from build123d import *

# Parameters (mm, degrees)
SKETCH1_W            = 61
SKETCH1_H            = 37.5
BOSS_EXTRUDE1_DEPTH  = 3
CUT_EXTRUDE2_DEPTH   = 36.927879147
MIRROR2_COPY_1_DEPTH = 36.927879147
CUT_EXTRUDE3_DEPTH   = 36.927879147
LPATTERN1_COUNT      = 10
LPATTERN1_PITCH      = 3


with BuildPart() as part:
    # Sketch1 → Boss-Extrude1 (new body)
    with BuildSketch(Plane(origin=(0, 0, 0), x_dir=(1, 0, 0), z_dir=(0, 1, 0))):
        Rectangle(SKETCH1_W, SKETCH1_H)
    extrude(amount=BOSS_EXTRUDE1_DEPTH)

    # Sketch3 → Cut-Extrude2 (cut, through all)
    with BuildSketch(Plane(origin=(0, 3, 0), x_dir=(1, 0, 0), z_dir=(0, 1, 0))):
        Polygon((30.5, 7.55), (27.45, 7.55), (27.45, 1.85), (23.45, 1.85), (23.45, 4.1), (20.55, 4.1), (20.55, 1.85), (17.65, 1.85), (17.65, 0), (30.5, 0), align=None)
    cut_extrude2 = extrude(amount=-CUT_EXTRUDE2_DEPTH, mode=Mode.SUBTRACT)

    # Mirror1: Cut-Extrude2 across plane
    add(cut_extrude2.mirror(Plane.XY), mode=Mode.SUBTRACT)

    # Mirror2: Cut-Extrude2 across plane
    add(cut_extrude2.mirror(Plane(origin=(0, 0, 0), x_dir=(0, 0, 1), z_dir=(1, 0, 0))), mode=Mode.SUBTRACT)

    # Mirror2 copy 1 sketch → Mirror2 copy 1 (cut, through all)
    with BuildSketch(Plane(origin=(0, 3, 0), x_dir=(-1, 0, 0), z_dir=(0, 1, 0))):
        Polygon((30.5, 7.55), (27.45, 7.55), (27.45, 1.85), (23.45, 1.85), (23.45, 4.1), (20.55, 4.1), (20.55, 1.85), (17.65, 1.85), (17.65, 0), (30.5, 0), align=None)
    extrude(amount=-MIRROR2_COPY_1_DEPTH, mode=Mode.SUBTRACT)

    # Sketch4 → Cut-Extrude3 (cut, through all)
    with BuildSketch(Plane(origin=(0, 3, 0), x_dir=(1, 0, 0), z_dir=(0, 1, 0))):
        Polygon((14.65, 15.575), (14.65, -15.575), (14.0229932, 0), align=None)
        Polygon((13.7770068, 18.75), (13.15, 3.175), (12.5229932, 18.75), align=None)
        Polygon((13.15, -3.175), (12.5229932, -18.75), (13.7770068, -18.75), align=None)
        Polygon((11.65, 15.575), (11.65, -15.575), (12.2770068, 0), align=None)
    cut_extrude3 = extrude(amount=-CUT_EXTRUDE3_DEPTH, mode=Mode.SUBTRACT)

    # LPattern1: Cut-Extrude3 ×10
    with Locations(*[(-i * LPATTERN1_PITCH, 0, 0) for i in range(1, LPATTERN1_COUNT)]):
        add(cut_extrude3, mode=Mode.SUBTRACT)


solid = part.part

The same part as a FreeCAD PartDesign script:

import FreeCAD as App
import Part
import Sketcher
Q = App.Units.Quantity


def add_polygon(sketch, points):
    """Adds a closed chain of lines whose ends are joined by coincident constraints."""
    first, n = sketch.GeometryCount, len(points)
    for a, b in zip(points, points[1:] + points[:1]):
        sketch.addGeometry(Part.LineSegment(App.Vector(*a, 0), App.Vector(*b, 0)), False)
    for i in range(n):
        sketch.addConstraint(Sketcher.Constraint("Coincident", first + i, 2, first + (i + 1) % n, 1))

doc = App.newDocument("Part")
params = doc.addObject("Spreadsheet::Sheet", "Params")
for row, (alias, value) in enumerate([
    ("sketch1_width", "61 mm"),
    ("sketch1_height", "37.5 mm"),
    ("pad1_length", "3 mm"),
    ("sketch2_width", "4 mm"),
    ("sketch2_width2", "2.9 mm"),
    ("sketch2_height", "5.7 mm"),
    ("sketch2_width3", "3.05 mm"),
    ("sketch2_height2", "2.25 mm"),
    ("sketch3_width", "4 mm"),
    ("sketch3_width2", "2.9 mm"),
    ("sketch3_height", "5.7 mm"),
    ("sketch3_width3", "3.05 mm"),
    ("sketch3_height2", "2.25 mm"),
    ("sketch4_height", "31.15 mm"),
    ("linearpattern_pitch", "3 mm"),
], start=1):
    params.set(f"A{row}", alias)
    params.set(f"B{row}", "=" + value)
    params.setAlias(f"B{row}", alias)

body = doc.addObject("PartDesign::Body", "Body")

sketch1 = body.newObject("Sketcher::SketchObject", "Sketch")
sketch1.AttachmentSupport = (doc.getObject("XZ_Plane"), [""])
sketch1.MapMode = "FlatFace"
add_polygon(sketch1, [(-30, -19), (-30, 19), (30, 19), (30, -19)])
sketch1.addConstraint([
    Sketcher.Constraint("Vertical", 0),
    Sketcher.Constraint("Horizontal", 1),
    Sketcher.Constraint("Vertical", 2),
    Sketcher.Constraint("Horizontal", 3),
    Sketcher.Constraint("Symmetric", 0, 2, 2, 2, -1, 1),
    Sketcher.Constraint("DistanceX", 1, 1, 1, 2, Q("61 mm")),
    Sketcher.Constraint("DistanceY", 0, 1, 0, 2, Q("37.5 mm")),
])
sketch1.setExpression("Constraints[9]", "Params.sketch1_width")
sketch1.setExpression("Constraints[10]", "Params.sketch1_height")
pad1 = body.newObject("PartDesign::Pad", "Pad")
pad1.Profile = sketch1
pad1.setExpression("Length", "Params.pad1_length")
pad1.Reversed = True

sketch2 = body.newObject("Sketcher::SketchObject", "Sketch001")
sketch2.AttachmentSupport = (doc.getObject("XZ_Plane"), [""])
sketch2.MapMode = "FlatFace"
sketch2.AttachmentOffset = App.Placement(App.Vector(0, 0, -3), App.Rotation())
add_polygon(sketch2, [(30.5, -7.5), (27.4, -7.5), (27.4, -1.9), (23.4, -1.9), (23.4, -4.1), (20.6, -4.1), (20.6, -1.9), (17.6, -1.9), (17.6, 0), (30.5, 0)])
sketch2.addConstraint([
    Sketcher.Constraint("Horizontal", 0),
    Sketcher.Constraint("Vertical", 1),
    Sketcher.Constraint("Horizontal", 2),
    Sketcher.Constraint("Vertical", 3),
    Sketcher.Constraint("Horizontal", 4),
    Sketcher.Constraint("Vertical", 5),
    Sketcher.Constraint("Horizontal", 6),
    Sketcher.Constraint("Vertical", 7),
    Sketcher.Constraint("Horizontal", 8),
    Sketcher.Constraint("Vertical", 9),
    Sketcher.Constraint("PointOnObject", 7, 2, -1),
    Sketcher.Constraint("Horizontal", 2, 2, 5, 2),
    Sketcher.Constraint("Equal", 4, 6),
    Sketcher.Constraint("DistanceX", 2, 2, 2, 1, Q("4 mm")),
    Sketcher.Constraint("DistanceX", 4, 2, 4, 1, Q("2.9 mm")),
    Sketcher.Constraint("DistanceY", 1, 1, 1, 2, Q("5.7 mm")),
    Sketcher.Constraint("DistanceX", 0, 2, 0, 1, Q("3.05 mm")),
    Sketcher.Constraint("DistanceY", 3, 2, 3, 1, Q("2.25 mm")),
    Sketcher.Constraint("DistanceY", 7, 1, 7, 2, Q("1.85 mm")),
    Sketcher.Constraint("DistanceX", -1, 1, 8, 2, Q("30.5 mm")),
])
sketch2.setExpression("Constraints[23]", "Params.sketch2_width")
sketch2.setExpression("Constraints[24]", "Params.sketch2_width2")
sketch2.setExpression("Constraints[25]", "Params.sketch2_height")
sketch2.setExpression("Constraints[26]", "Params.sketch2_width3")
sketch2.setExpression("Constraints[27]", "Params.sketch2_height2")
pocket1 = body.newObject("PartDesign::Pocket", "Pocket")
pocket1.Profile = sketch2
pocket1.Type = "ThroughAll"
pocket1.Reversed = True
doc.recompute()

mirrored = body.newObject("PartDesign::Mirrored", "Mirrored")
mirrored.Originals = [pocket1]
mirrored.MirrorPlane = (doc.getObject("XY_Plane"), [""])
body.Tip = mirrored
doc.recompute()

mirrored2 = body.newObject("PartDesign::Mirrored", "Mirrored001")
mirrored2.Originals = [pocket1]
mirrored2.MirrorPlane = (doc.getObject("YZ_Plane"), [""])
body.Tip = mirrored2

sketch3 = body.newObject("Sketcher::SketchObject", "Sketch002")
sketch3.AttachmentSupport = (doc.getObject("XZ_Plane"), [""])
sketch3.MapMode = "FlatFace"
sketch3.AttachmentOffset = App.Placement(App.Vector(0, 0, -3), App.Rotation())
add_polygon(sketch3, [(-30.5, 7.5), (-27.4, 7.5), (-27.4, 1.9), (-23.4, 1.9), (-23.4, 4.1), (-20.6, 4.1), (-20.6, 1.9), (-17.6, 1.9), (-17.6, 0), (-30.5, 0)])
sketch3.addConstraint([
    Sketcher.Constraint("Horizontal", 0),
    Sketcher.Constraint("Vertical", 1),
    Sketcher.Constraint("Horizontal", 2),
    Sketcher.Constraint("Vertical", 3),
    Sketcher.Constraint("Horizontal", 4),
    Sketcher.Constraint("Vertical", 5),
    Sketcher.Constraint("Horizontal", 6),
    Sketcher.Constraint("Vertical", 7),
    Sketcher.Constraint("Horizontal", 8),
    Sketcher.Constraint("Vertical", 9),
    Sketcher.Constraint("PointOnObject", 7, 2, -1),
    Sketcher.Constraint("Horizontal", 2, 2, 5, 2),
    Sketcher.Constraint("Equal", 4, 6),
    Sketcher.Constraint("DistanceX", 2, 1, 2, 2, Q("4 mm")),
    Sketcher.Constraint("DistanceX", 4, 1, 4, 2, Q("2.9 mm")),
    Sketcher.Constraint("DistanceY", 1, 2, 1, 1, Q("5.7 mm")),
    Sketcher.Constraint("DistanceX", 0, 1, 0, 2, Q("3.05 mm")),
    Sketcher.Constraint("DistanceY", 3, 1, 3, 2, Q("2.25 mm")),
    Sketcher.Constraint("DistanceY", 7, 2, 7, 1, Q("1.85 mm")),
    Sketcher.Constraint("DistanceX", 8, 2, -1, 1, Q("30.5 mm")),
])
sketch3.setExpression("Constraints[23]", "Params.sketch3_width")
sketch3.setExpression("Constraints[24]", "Params.sketch3_width2")
sketch3.setExpression("Constraints[25]", "Params.sketch3_height")
sketch3.setExpression("Constraints[26]", "Params.sketch3_width3")
sketch3.setExpression("Constraints[27]", "Params.sketch3_height2")
pocket2 = body.newObject("PartDesign::Pocket", "Pocket001")
pocket2.Profile = sketch3
pocket2.Type = "ThroughAll"
pocket2.Reversed = True

sketch4 = body.newObject("Sketcher::SketchObject", "Sketch003")
sketch4.AttachmentSupport = (doc.getObject("XZ_Plane"), [""])
sketch4.MapMode = "FlatFace"
sketch4.AttachmentOffset = App.Placement(App.Vector(0, 0, -3), App.Rotation())
add_polygon(sketch4, [(14.7, 15.6), (14.7, -15.6), (14, 0)])
add_polygon(sketch4, [(13.2, -3.2), (13.8, -18.8), (12.5, -18.8)])
add_polygon(sketch4, [(13.2, 3.2), (12.5, 18.8), (13.8, 18.8)])
add_polygon(sketch4, [(11.7, -15.6), (11.7, 15.6), (12.3, 0)])
sketch4.addConstraint([
    Sketcher.Constraint("Vertical", 0),
    Sketcher.Constraint("Horizontal", 4),
    Sketcher.Constraint("Horizontal", 7),
    Sketcher.Constraint("Vertical", 9),
    Sketcher.Constraint("Symmetric", 4, 2, 6, 2, -1),
    Sketcher.Constraint("Symmetric", 5, 2, 8, 2, -1),
    Sketcher.Constraint("PointOnObject", 1, 2, -1),
    Sketcher.Constraint("PointOnObject", 10, 2, -1),
    Sketcher.Constraint("Parallel", 1, 3),
    Sketcher.Constraint("Parallel", 2, 5),
    Sketcher.Constraint("Parallel", 3, 6),
    Sketcher.Constraint("Parallel", 5, 8),
    Sketcher.Constraint("Parallel", 6, 10),
    Sketcher.Constraint("Parallel", 8, 11),
    Sketcher.Constraint("Horizontal", 2, 2, 9, 2),
    Sketcher.Constraint("Equal", 2, 3),
    Sketcher.Constraint("DistanceX", 9, 2, 2, 2, Q("3 mm")),
    Sketcher.Constraint("DistanceY", 0, 2, 0, 1, Q("31.15 mm")),
    Sketcher.Constraint("DistanceX", 4, 2, 1, 2, Q("1.5 mm")),
    Sketcher.Constraint("DistanceY", 0, 2, 5, 2, Q("12.4 mm")),
    Sketcher.Constraint("DistanceX", -1, 1, 0, 2, Q("14.65 mm")),
    Sketcher.Constraint("DistanceX", 4, 2, 4, 1, Q("1.254014 mm")),
])
sketch4.setExpression("Constraints[29]", "Params.sketch4_height")
pocket3 = body.newObject("PartDesign::Pocket", "Pocket002")
pocket3.Profile = sketch4
pocket3.Type = "ThroughAll"
pocket3.Reversed = True
doc.recompute()

linearpattern = body.newObject("PartDesign::LinearPattern", "LinearPattern")
linearpattern.Originals = [pocket3]
linearpattern.Direction = (doc.getObject("X_Axis"), [""])
linearpattern.Mode = "offset"
linearpattern.setExpression("Offset", "Params.linearpattern_pitch")
linearpattern.Occurrences = 10
linearpattern.Reversed = True
body.Tip = linearpattern

doc.recompute()
